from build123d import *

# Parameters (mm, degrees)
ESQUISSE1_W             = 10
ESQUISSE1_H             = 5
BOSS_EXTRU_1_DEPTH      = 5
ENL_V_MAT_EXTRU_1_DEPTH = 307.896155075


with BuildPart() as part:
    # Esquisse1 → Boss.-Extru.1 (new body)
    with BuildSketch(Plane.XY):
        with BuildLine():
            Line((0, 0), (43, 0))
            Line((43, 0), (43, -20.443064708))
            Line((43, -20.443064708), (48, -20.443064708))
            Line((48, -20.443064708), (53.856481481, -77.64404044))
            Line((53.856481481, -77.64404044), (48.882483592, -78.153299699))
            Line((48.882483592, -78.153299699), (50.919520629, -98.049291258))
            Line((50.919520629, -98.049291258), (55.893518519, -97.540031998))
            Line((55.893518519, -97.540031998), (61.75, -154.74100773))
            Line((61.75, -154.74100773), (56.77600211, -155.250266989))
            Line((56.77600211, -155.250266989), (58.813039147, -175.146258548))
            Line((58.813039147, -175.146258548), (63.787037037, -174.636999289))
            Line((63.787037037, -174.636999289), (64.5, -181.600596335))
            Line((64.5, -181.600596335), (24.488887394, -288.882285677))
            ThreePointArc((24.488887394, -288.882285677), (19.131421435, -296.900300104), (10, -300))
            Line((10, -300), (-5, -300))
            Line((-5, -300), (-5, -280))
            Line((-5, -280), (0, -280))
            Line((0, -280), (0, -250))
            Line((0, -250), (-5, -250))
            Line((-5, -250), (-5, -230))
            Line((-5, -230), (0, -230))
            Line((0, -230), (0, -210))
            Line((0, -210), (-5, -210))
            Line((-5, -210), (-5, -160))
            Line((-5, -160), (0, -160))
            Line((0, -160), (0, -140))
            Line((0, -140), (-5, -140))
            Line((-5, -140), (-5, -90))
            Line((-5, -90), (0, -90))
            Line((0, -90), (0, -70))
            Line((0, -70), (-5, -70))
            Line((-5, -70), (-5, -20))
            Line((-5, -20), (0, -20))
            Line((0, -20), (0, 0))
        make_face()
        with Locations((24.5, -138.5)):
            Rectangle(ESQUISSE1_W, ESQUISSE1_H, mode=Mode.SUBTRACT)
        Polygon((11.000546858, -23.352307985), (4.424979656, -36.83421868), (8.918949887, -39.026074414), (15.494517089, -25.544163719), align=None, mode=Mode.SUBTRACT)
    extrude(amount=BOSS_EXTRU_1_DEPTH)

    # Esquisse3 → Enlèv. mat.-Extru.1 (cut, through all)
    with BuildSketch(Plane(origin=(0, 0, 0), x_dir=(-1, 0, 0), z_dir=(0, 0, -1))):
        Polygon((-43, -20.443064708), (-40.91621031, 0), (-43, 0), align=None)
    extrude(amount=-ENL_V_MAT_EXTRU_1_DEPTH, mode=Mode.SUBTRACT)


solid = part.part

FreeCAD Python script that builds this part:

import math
import FreeCAD as App
import Part
import Sketcher

V = App.Vector
Q = App.Units.Quantity


def add_polygon(sketch, points):
    """Adds a closed chain of lines whose ends are joined by coincident constraints."""
    first, n = sketch.GeometryCount, len(points)
    for a, b in zip(points, points[1:] + points[:1]):
        sketch.addGeometry(Part.LineSegment(App.Vector(*a, 0), App.Vector(*b, 0)), False)
    for i in range(n):
        sketch.addConstraint(Sketcher.Constraint("Coincident", first + i, 2, first + (i + 1) % n, 1))

doc = App.newDocument("Part")
body = doc.addObject("PartDesign::Body", "Body")

# Sketch on XY plane
sketch1 = body.newObject("Sketcher::SketchObject", "Sketch")
sketch1.AttachmentSupport = (doc.getObject("XY_Plane"), [""])
sketch1.MapMode = "FlatFace"
sketch1.addGeometry(Part.LineSegment(V(43, 0, 0), V(0, 0, 0)), False)  # 0
sketch1.addGeometry(Part.LineSegment(V(0, 0, 0), V(0, -20, 0)), False)  # 1
sketch1.addGeometry(Part.LineSegment(V(0, -20, 0), V(-5, -20, 0)), False)  # 2
sketch1.addGeometry(Part.LineSegment(V(-5, -20, 0), V(-5, -70, 0)), False)  # 3
sketch1.addGeometry(Part.LineSegment(V(-5, -70, 0), V(0, -70, 0)), False)  # 4
sketch1.addGeometry(Part.LineSegment(V(0, -70, 0), V(0, -90, 0)), False)  # 5
sketch1.addGeometry(Part.LineSegment(V(0, -90, 0), V(-5, -90, 0)), False)  # 6
sketch1.addGeometry(Part.LineSegment(V(-5, -90, 0), V(-5, -140, 0)), False)  # 7
sketch1.addGeometry(Part.LineSegment(V(-5, -140, 0), V(0, -140, 0)), False)  # 8
sketch1.addGeometry(Part.LineSegment(V(0, -140, 0), V(0, -160, 0)), False)  # 9
sketch1.addGeometry(Part.LineSegment(V(0, -160, 0), V(-5, -160, 0)), False)  # 10
sketch1.addGeometry(Part.LineSegment(V(-5, -160, 0), V(-5, -210, 0)), False)  # 11
sketch1.addGeometry(Part.LineSegment(V(-5, -210, 0), V(0, -210, 0)), False)  # 12
sketch1.addGeometry(Part.LineSegment(V(0, -210, 0), V(0, -230, 0)), False)  # 13
sketch1.addGeometry(Part.LineSegment(V(0, -230, 0), V(-5, -230, 0)), False)  # 14
sketch1.addGeometry(Part.LineSegment(V(-5, -230, 0), V(-5, -250, 0)), False)  # 15
sketch1.addGeometry(Part.LineSegment(V(-5, -250, 0), V(0, -250, 0)), False)  # 16
sketch1.addGeometry(Part.LineSegment(V(0, -250, 0), V(0, -280, 0)), False)  # 17
sketch1.addGeometry(Part.LineSegment(V(0, -280, 0), V(-5, -280, 0)), False)  # 18
sketch1.addGeometry(Part.LineSegment(V(-5, -280, 0), V(-5, -300, 0)), False)  # 19
sketch1.addGeometry(Part.LineSegment(V(-5, -300, 0), V(10, -300, 0)), False)  # 20
sketch1.addGeometry(Part.ArcOfCircle(Part.Circle(V(10, -285, 0), V(0, 0, 1), 15), math.radians(-90), math.radians(-15)), False)  # 21
sketch1.addGeometry(Part.LineSegment(V(24.488887, -288.882286, 0), V(64.5, -181.600596, 0)), False)  # 22
sketch1.addGeometry(Part.LineSegment(V(64.5, -181.600596, 0), V(63.787037, -174.636999, 0)), False)  # 23
sketch1.addGeometry(Part.LineSegment(V(63.787037, -174.636999, 0), V(58.813039, -175.146259, 0)), False)  # 24
sketch1.addGeometry(Part.LineSegment(V(58.813039, -175.146259, 0), V(56.776002, -155.250267, 0)), False)  # 25
sketch1.addGeometry(Part.LineSegment(V(56.776002, -155.250267, 0), V(61.75, -154.741008, 0)), False)  # 26
sketch1.addGeometry(Part.LineSegment(V(61.75, -154.741008, 0), V(55.893519, -97.540032, 0)), False)  # 27
sketch1.addGeometry(Part.LineSegment(V(55.893519, -97.540032, 0), V(50.919521, -98.049291, 0)), False)  # 28
sketch1.addGeometry(Part.LineSegment(V(50.919521, -98.049291, 0), V(48.882484, -78.1533, 0)), False)  # 29
sketch1.addGeometry(Part.LineSegment(V(48.882484, -78.1533, 0), V(53.856481, -77.64404, 0)), False)  # 30
sketch1.addGeometry(Part.LineSegment(V(53.856481, -77.64404, 0), V(48, -20.443065, 0)), False)  # 31
sketch1.addGeometry(Part.LineSegment(V(48, -20.443065, 0), V(43, -20.443065, 0)), False)  # 32
sketch1.addGeometry(Part.LineSegment(V(43, -20.443065, 0), V(43, 0, 0)), False)  # 33
add_polygon(sketch1, [(19.5, -141), (19.5, -136), (29.5, -136), (29.5, -141)])  # lines 34-37
add_polygon(sketch1, [(11.000547, -23.352308), (15.494517, -25.544164), (8.91895, -39.026074), (4.42498, -36.834219)])  # lines 38-41
sketch1.addConstraint(Sketcher.Constraint("Coincident", 0, 2, 1, 1))
sketch1.addConstraint(Sketcher.Constraint("Coincident", 1, 2, 2, 1))
sketch1.addConstraint(Sketcher.Constraint("Coincident", 2, 2, 3, 1))
sketch1.addConstraint(Sketcher.Constraint("Coincident", 3, 2, 4, 1))
sketch1.addConstraint(Sketcher.Constraint("Coincident", 4, 2, 5, 1))
sketch1.addConstraint(Sketcher.Constraint("Coincident", 5, 2, 6, 1))
sketch1.addConstraint(Sketcher.Constraint("Coincident", 6, 2, 7, 1))
sketch1.addConstraint(Sketcher.Constraint("Coincident", 7, 2, 8, 1))
sketch1.addConstraint(Sketcher.Constraint("Coincident", 8, 2, 9, 1))
sketch1.addConstraint(Sketcher.Constraint("Coincident", 9, 2, 10, 1))
sketch1.addConstraint(Sketcher.Constraint("Coincident", 10, 2, 11, 1))
sketch1.addConstraint(Sketcher.Constraint("Coincident", 11, 2, 12, 1))
sketch1.addConstraint(Sketcher.Constraint("Coincident", 12, 2, 13, 1))
sketch1.addConstraint(Sketcher.Constraint("Coincident", 13, 2, 14, 1))
sketch1.addConstraint(Sketcher.Constraint("Coincident", 14, 2, 15, 1))
sketch1.addConstraint(Sketcher.Constraint("Coincident", 15, 2, 16, 1))
sketch1.addConstraint(Sketcher.Constraint("Coincident", 16, 2, 17, 1))
sketch1.addConstraint(Sketcher.Constraint("Coincident", 17, 2, 18, 1))
sketch1.addConstraint(Sketcher.Constraint("Coincident", 18, 2, 19, 1))
sketch1.addConstraint(Sketcher.Constraint("Coincident", 19, 2, 20, 1))
sketch1.addConstraint(Sketcher.Constraint("Tangent", 20, 2, 21, 1))
sketch1.addConstraint(Sketcher.Constraint("Coincident", 21, 2, 22, 1))
sketch1.addConstraint(Sketcher.Constraint("Coincident", 22, 2, 23, 1))
sketch1.addConstraint(Sketcher.Constraint("Coincident", 23, 2, 24, 1))
sketch1.addConstraint(Sketcher.Constraint("Coincident", 24, 2, 25, 1))
sketch1.addConstraint(Sketcher.Constraint("Coincident", 25, 2, 26, 1))
sketch1.addConstraint(Sketcher.Constraint("Coincident", 26, 2, 27, 1))
sketch1.addConstraint(Sketcher.Constraint("Coincident", 27, 2, 28, 1))
sketch1.addConstraint(Sketcher.Constraint("Coincident", 28, 2, 29, 1))
sketch1.addConstraint(Sketcher.Constraint("Coincident", 29, 2, 30, 1))
sketch1.addConstraint(Sketcher.Constraint("Coincident", 30, 2, 31, 1))
sketch1.addConstraint(Sketcher.Constraint("Coincident", 31, 2, 32, 1))
sketch1.addConstraint(Sketcher.Constraint("Coincident", 32, 2, 33, 1))
sketch1.addConstraint(Sketcher.Constraint("Coincident", 33, 2, 0, 1))
sketch1.addConstraint(Sketcher.Constraint("Horizontal", 0))
sketch1.addConstraint(Sketcher.Constraint("Vertical", 1))
sketch1.addConstraint(Sketcher.Constraint("Horizontal", 2))
sketch1.addConstraint(Sketcher.Constraint("Vertical", 3))
sketch1.addConstraint(Sketcher.Constraint("Horizontal", 4))
sketch1.addConstraint(Sketcher.Constraint("Vertical", 5))
sketch1.addConstraint(Sketcher.Constraint("Horizontal", 6))
sketch1.addConstraint(Sketcher.Constraint("Vertical", 7))
sketch1.addConstraint(Sketcher.Constraint("Horizontal", 8))
sketch1.addConstraint(Sketcher.Constraint("Vertical", 9))
sketch1.addConstraint(Sketcher.Constraint("Horizontal", 10))
sketch1.addConstraint(Sketcher.Constraint("Vertical", 11))
sketch1.addConstraint(Sketcher.Constraint("Horizontal", 12))
sketch1.addConstraint(Sketcher.Constraint("Vertical", 13))
sketch1.addConstraint(Sketcher.Constraint("Horizontal", 14))
sketch1.addConstraint(Sketcher.Constraint("Vertical", 15))
sketch1.addConstraint(Sketcher.Constraint("Horizontal", 16))
sketch1.addConstraint(Sketcher.Constraint("Vertical", 17))
sketch1.addConstraint(Sketcher.Constraint("Horizontal", 18))
sketch1.addConstraint(Sketcher.Constraint("Vertical", 19))
sketch1.addConstraint(Sketcher.Constraint("Horizontal", 20))
sketch1.addConstraint(Sketcher.Constraint("Horizontal", 32))
sketch1.addConstraint(Sketcher.Constraint("Vertical", 33))
sketch1.addConstraint(Sketcher.Constraint("Vertical", 34))
sketch1.addConstraint(Sketcher.Constraint("Horizontal", 35))
sketch1.addConstraint(Sketcher.Constraint("Vertical", 36))
sketch1.addConstraint(Sketcher.Constraint("Horizontal", 37))
sketch1.addConstraint(Sketcher.Constraint("Coincident", 0, 2, -1, 1))
sketch1.addConstraint(Sketcher.Constraint("PointOnObject", 4, 2, -2))
sketch1.addConstraint(Sketcher.Constraint("PointOnObject", 8, 2, -2))
sketch1.addConstraint(Sketcher.Constraint("PointOnObject", 12, 2, -2))
sketch1.addConstraint(Sketcher.Constraint("PointOnObject", 16, 2, -2))
sketch1.addConstraint(Sketcher.Constraint("Perpendicular", 23, 24))
sketch1.addConstraint(Sketcher.Constraint("Perpendicular", 24, 25))
sketch1.addConstraint(Sketcher.Constraint("Perpendicular", 25, 26))
sketch1.addConstraint(Sketcher.Constraint("Perpendicular", 26, 27))
sketch1.addConstraint(Sketcher.Constraint("Perpendicular", 27, 28))
sketch1.addConstraint(Sketcher.Constraint("Perpendicular", 28, 29))
sketch1.addConstraint(Sketcher.Constraint("Perpendicular", 29, 30))
sketch1.addConstraint(Sketcher.Constraint("Perpendicular", 30, 31))
sketch1.addConstraint(Sketcher.Constraint("Perpendicular", 38, 39))
sketch1.addConstraint(Sketcher.Constraint("Perpendicular", 39, 40))
sketch1.addConstraint(Sketcher.Constraint("Perpendicular", 40, 41))
sketch1.addConstraint(Sketcher.Constraint("Vertical", 3, 2, 6, 2))
sketch1.addConstraint(Sketcher.Constraint("Vertical", 7, 2, 10, 2))
sketch1.addConstraint(Sketcher.Constraint("Vertical", 11, 2, 14, 2))
sketch1.addConstraint(Sketcher.Constraint("Vertical", 15, 2, 18, 2))
sketch1.addConstraint(Sketcher.Constraint("Equal", 18, 32))
sketch1.addConstraint(Sketcher.Constraint("Equal", 1, 5))
sketch1.addConstraint(Sketcher.Constraint("Equal", 3, 7))
sketch1.addConstraint(Sketcher.Constraint("Equal", 5, 9))
sketch1.addConstraint(Sketcher.Constraint("Equal", 7, 11))
sketch1.addConstraint(Sketcher.Constraint("Equal", 9, 13))
sketch1.addConstraint(Sketcher.Constraint("Equal", 13, 15))
sketch1.addConstraint(Sketcher.Constraint("Equal", 15, 19))
sketch1.addConstraint(Sketcher.Constraint("Equal", 32, 34))
sketch1.addConstraint(Sketcher.Constraint("Equal", 24, 26))
sketch1.addConstraint(Sketcher.Constraint("Equal", 26, 28))
sketch1.addConstraint(Sketcher.Constraint("Equal", 25, 29))
sketch1.addConstraint(Sketcher.Constraint("Equal", 28, 30))
sketch1.addConstraint(Sketcher.Constraint("Equal", 27, 31))
sketch1.addConstraint(Sketcher.Constraint("Equal", 30, 38))
sketch1.addConstraint(Sketcher.Constraint("Radius", 21, 15.0))
sketch1.addConstraint(Sketcher.Constraint("DistanceX", 0, 2, 0, 1, 43.0))
sketch1.addConstraint(Sketcher.Constraint("DistanceX", 2, 2, 2, 1, 5.0))
sketch1.addConstraint(Sketcher.Constraint("DistanceX", 20, 1, 20, 2, 15.0))
sketch1.addConstraint(Sketcher.Constraint("DistanceX", 35, 1, 35, 2, 10.0))
sketch1.addConstraint(Sketcher.Constraint("DistanceY", 1, 2, 1, 1, 20.0))
sketch1.addConstraint(Sketcher.Constraint("DistanceY", 3, 2, 3, 1, 50.0))
sketch1.addConstraint(Sketcher.Constraint("DistanceY", 17, 2, 17, 1, 30.0))
sketch1.addConstraint(Sketcher.Constraint("Angle", 38, Q("-26 deg")))
sketch1.addConstraint(Sketcher.Constraint("Distance", 23, 7.0))
sketch1.addConstraint(Sketcher.Constraint("Distance", 24, 5.0))
sketch1.addConstraint(Sketcher.Constraint("Distance", 25, 20.0))
sketch1.addConstraint(Sketcher.Constraint("Distance", 39, 15.0))
sketch1.addConstraint(Sketcher.Constraint("DistanceY", 34, 2, -1, 1, 136.0))
sketch1.addConstraint(Sketcher.Constraint("Distance", 22, 114.5))
sketch1.addConstraint(Sketcher.Constraint("Distance", 27, 57.5))
sketch1.addConstraint(Sketcher.Constraint("DistanceX", -1, 1, 22, 2, 64.5))
sketch1.addConstraint(Sketcher.Constraint("DistanceX", -1, 1, 34, 2, 19.5))
sketch1.addConstraint(Sketcher.Constraint("DistanceY", 23, 2, -1, 1, 174.636999))
sketch1.addConstraint(Sketcher.Constraint("DistanceY", 38, 2, 32, 2, 5.101099))
sketch1.addConstraint(Sketcher.Constraint("DistanceX", -1, 1, 39, 2, 8.91895))
pad1 = body.newObject("PartDesign::Pad", "Pad")
pad1.Profile = sketch1
pad1.Length = 5

# Sketch on XY plane
sketch2 = body.newObject("Sketcher::SketchObject", "Sketch001")
sketch2.AttachmentSupport = (doc.getObject("XY_Plane"), [""])
sketch2.MapMode = "FlatFace"
add_polygon(sketch2, [(43, -20.443065), (40.91621, 0), (43, 0)])  # lines 0-2
sketch2.addConstraint(Sketcher.Constraint("Horizontal", 1))
sketch2.addConstraint(Sketcher.Constraint("Vertical", 2))
sketch2.addConstraint(Sketcher.Constraint("PointOnObject", 0, 2, -1))
sketch2.addConstraint(Sketcher.Constraint("DistanceX", -1, 1, 1, 2, 43.0))
sketch2.addConstraint(Sketcher.Constraint("DistanceX", 1, 1, 1, 2, 2.08379))
sketch2.addConstraint(Sketcher.Constraint("DistanceY", 2, 2, 2, 1, 20.443065))
pocket1 = body.newObject("PartDesign::Pocket", "Pocket")
pocket1.Profile = sketch2
pocket1.Type = "ThroughAll"
pocket1.Reversed = True

doc.recompute()
